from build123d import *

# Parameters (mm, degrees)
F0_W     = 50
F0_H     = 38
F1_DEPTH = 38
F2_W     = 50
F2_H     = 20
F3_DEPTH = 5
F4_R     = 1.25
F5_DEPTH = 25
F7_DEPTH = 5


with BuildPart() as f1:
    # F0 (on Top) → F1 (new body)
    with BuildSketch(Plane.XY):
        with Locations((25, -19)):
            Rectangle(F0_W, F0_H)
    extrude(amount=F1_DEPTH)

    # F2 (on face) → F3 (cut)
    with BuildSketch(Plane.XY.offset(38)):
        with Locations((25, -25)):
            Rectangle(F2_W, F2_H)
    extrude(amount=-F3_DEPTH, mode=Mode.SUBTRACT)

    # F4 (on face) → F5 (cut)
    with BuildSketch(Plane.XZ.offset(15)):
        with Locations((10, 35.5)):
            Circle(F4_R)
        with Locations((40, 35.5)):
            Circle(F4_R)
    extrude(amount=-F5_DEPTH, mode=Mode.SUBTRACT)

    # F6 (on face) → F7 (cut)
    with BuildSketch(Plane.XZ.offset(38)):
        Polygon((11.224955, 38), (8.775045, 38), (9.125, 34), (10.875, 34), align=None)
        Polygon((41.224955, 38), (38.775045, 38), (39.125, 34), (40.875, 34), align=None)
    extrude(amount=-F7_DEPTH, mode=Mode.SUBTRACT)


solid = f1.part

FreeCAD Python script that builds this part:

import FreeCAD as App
import Part
import Sketcher
Q = App.Units.Quantity


def add_polygon(sketch, points):
    """Adds a closed chain of lines whose ends are joined by coincident constraints."""
    first, n = sketch.GeometryCount, len(points)
    for a, b in zip(points, points[1:] + points[:1]):
        sketch.addGeometry(Part.LineSegment(App.Vector(*a, 0), App.Vector(*b, 0)), False)
    for i in range(n):
        sketch.addConstraint(Sketcher.Constraint("Coincident", first + i, 2, first + (i + 1) % n, 1))

doc = App.newDocument("Part")
params = doc.addObject("Spreadsheet::Sheet", "Params")
for row, (alias, value) in enumerate([
    ("sketch1_width", "50 mm"),
    ("sketch1_height", "38 mm"),
    ("pad1_length", "38 mm"),
    ("sketch2_width", "50 mm"),
    ("sketch2_height", "20 mm"),
    ("pocket1_length", "5 mm"),
    ("sketch3_diameter", "2.5 mm"),
    ("pocket2_length", "25 mm"),
    ("sketch4_width", "1.75 mm"),
    ("pocket3_length", "5 mm"),
], start=1):
    params.set(f"A{row}", alias)
    params.set(f"B{row}", "=" + value)
    params.setAlias(f"B{row}", alias)

body = doc.addObject("PartDesign::Body", "Body")

# Sketch on XY plane
sketch1 = body.newObject("Sketcher::SketchObject", "Sketch")
sketch1.AttachmentSupport = (doc.getObject("XY_Plane"), [""])
sketch1.MapMode = "FlatFace"
add_polygon(sketch1, [(0, 0), (0, -38), (50, -38), (50, 0)])  # lines 0-3
sketch1.addConstraint(Sketcher.Constraint("Vertical", 0))
sketch1.addConstraint(Sketcher.Constraint("Horizontal", 1))
sketch1.addConstraint(Sketcher.Constraint("Vertical", 2))
sketch1.addConstraint(Sketcher.Constraint("Horizontal", 3))
sketch1.addConstraint(Sketcher.Constraint("Coincident", 3, 2, -1, 1))
sketch1.addConstraint(Sketcher.Constraint("DistanceX", 1, 1, 1, 2, Q("50 mm")))
sketch1.addConstraint(Sketcher.Constraint("DistanceY", 0, 2, 0, 1, Q("38 mm")))
sketch1.setExpression("Constraints[9]", "Params.sketch1_width")
sketch1.setExpression("Constraints[10]", "Params.sketch1_height")
pad1 = body.newObject("PartDesign::Pad", "Pad")
pad1.Profile = sketch1
pad1.setExpression("Length", "Params.pad1_length")

# Sketch on XY plane
sketch2 = body.newObject("Sketcher::SketchObject", "Sketch001")
sketch2.AttachmentSupport = (doc.getObject("XY_Plane"), [""])
sketch2.MapMode = "FlatFace"
sketch2.AttachmentOffset = App.Placement(App.Vector(0, 0, 38), App.Rotation())
add_polygon(sketch2, [(0, -15), (0, -35), (50, -35), (50, -15)])  # lines 0-3
sketch2.addConstraint(Sketcher.Constraint("Vertical", 0))
sketch2.addConstraint(Sketcher.Constraint("Horizontal", 1))
sketch2.addConstraint(Sketcher.Constraint("Vertical", 2))
sketch2.addConstraint(Sketcher.Constraint("Horizontal", 3))
sketch2.addConstraint(Sketcher.Constraint("PointOnObject", 0, 2, -2))
sketch2.addConstraint(Sketcher.Constraint("DistanceX", 1, 1, 1, 2, Q("50 mm")))
sketch2.addConstraint(Sketcher.Constraint("DistanceY", 0, 2, 0, 1, Q("20 mm")))
sketch2.addConstraint(Sketcher.Constraint("DistanceY", 0, 2, -1, 1, Q("35 mm")))
sketch2.setExpression("Constraints[9]", "Params.sketch2_width")
sketch2.setExpression("Constraints[10]", "Params.sketch2_height")
pocket1 = body.newObject("PartDesign::Pocket", "Pocket")
pocket1.Profile = sketch2
pocket1.setExpression("Length", "Params.pocket1_length")

# Sketch on XZ plane
sketch3 = body.newObject("Sketcher::SketchObject", "Sketch002")
sketch3.AttachmentSupport = (doc.getObject("XZ_Plane"), [""])
sketch3.MapMode = "FlatFace"
sketch3.AttachmentOffset = App.Placement(App.Vector(0, 0, 15), App.Rotation())
sketch3.addGeometry(Part.Circle(App.Vector(10, 35.5, 0), App.Vector(0, 0, 1), 1.2), False)
sketch3.addGeometry(Part.Circle(App.Vector(40, 35.5, 0), App.Vector(0, 0, 1), 1.2), False)
sketch3.addConstraint(Sketcher.Constraint("Equal", 0, 1))
sketch3.addConstraint(Sketcher.Constraint("Horizontal", 0, 3, 1, 3))
sketch3.addConstraint(Sketcher.Constraint("Diameter", 0, Q("2.5 mm")))
sketch3.addConstraint(Sketcher.Constraint("DistanceX", -1, 1, 0, 3, Q("10 mm")))
sketch3.addConstraint(Sketcher.Constraint("DistanceX", -1, 1, 1, 3, Q("40 mm")))
sketch3.addConstraint(Sketcher.Constraint("DistanceY", -1, 1, 0, 3, Q("35.5 mm")))
sketch3.setExpression("Constraints[2]", "Params.sketch3_diameter")
pocket2 = body.newObject("PartDesign::Pocket", "Pocket001")
pocket2.Profile = sketch3
pocket2.setExpression("Length", "Params.pocket2_length")

# Sketch on XZ plane
sketch4 = body.newObject("Sketcher::SketchObject", "Sketch003")
sketch4.AttachmentSupport = (doc.getObject("XZ_Plane"), [""])
sketch4.MapMode = "FlatFace"
sketch4.AttachmentOffset = App.Placement(App.Vector(0, 0, 38), App.Rotation())
add_polygon(sketch4, [(11.2, 38), (8.8, 38), (9.1, 34), (10.9, 34)])  # lines 0-3
add_polygon(sketch4, [(41.2, 38), (38.8, 38), (39.1, 34), (40.9, 34)])  # lines 4-7
sketch4.addConstraint(Sketcher.Constraint("Horizontal", 0))
sketch4.addConstraint(Sketcher.Constraint("Horizontal", 2))
sketch4.addConstraint(Sketcher.Constraint("Horizontal", 4))
sketch4.addConstraint(Sketcher.Constraint("Horizontal", 6))
sketch4.addConstraint(Sketcher.Constraint("Parallel", 1, 5))
sketch4.addConstraint(Sketcher.Constraint("Parallel", 3, 7))
sketch4.addConstraint(Sketcher.Constraint("Horizontal", 3, 2, 4, 2))
sketch4.addConstraint(Sketcher.Constraint("Horizontal", 2, 2, 5, 2))
sketch4.addConstraint(Sketcher.Constraint("Equal", 0, 4))
sketch4.addConstraint(Sketcher.Constraint("Equal", 1, 3))
sketch4.addConstraint(Sketcher.Constraint("Angle", 1, Q("-84.999995 deg")))
sketch4.addConstraint(Sketcher.Constraint("DistanceY", -1, 1, 0, 2, Q("38 mm")))
sketch4.addConstraint(Sketcher.Constraint("DistanceY", -1, 1, 1, 2, Q("34 mm")))
sketch4.addConstraint(Sketcher.Constraint("DistanceX", 0, 2, 4, 2, Q("30 mm")))
sketch4.addConstraint(Sketcher.Constraint("DistanceX", 2, 1, 2, 2, Q("1.75 mm")))
sketch4.addConstraint(Sketcher.Constraint("DistanceX", -1, 1, 1, 2, Q("9.125 mm")))
sketch4.setExpression("Constraints[22]", "Params.sketch4_width")
pocket3 = body.newObject("PartDesign::Pocket", "Pocket002")
pocket3.Profile = sketch4
pocket3.setExpression("Length", "Params.pocket3_length")

doc.recompute()
